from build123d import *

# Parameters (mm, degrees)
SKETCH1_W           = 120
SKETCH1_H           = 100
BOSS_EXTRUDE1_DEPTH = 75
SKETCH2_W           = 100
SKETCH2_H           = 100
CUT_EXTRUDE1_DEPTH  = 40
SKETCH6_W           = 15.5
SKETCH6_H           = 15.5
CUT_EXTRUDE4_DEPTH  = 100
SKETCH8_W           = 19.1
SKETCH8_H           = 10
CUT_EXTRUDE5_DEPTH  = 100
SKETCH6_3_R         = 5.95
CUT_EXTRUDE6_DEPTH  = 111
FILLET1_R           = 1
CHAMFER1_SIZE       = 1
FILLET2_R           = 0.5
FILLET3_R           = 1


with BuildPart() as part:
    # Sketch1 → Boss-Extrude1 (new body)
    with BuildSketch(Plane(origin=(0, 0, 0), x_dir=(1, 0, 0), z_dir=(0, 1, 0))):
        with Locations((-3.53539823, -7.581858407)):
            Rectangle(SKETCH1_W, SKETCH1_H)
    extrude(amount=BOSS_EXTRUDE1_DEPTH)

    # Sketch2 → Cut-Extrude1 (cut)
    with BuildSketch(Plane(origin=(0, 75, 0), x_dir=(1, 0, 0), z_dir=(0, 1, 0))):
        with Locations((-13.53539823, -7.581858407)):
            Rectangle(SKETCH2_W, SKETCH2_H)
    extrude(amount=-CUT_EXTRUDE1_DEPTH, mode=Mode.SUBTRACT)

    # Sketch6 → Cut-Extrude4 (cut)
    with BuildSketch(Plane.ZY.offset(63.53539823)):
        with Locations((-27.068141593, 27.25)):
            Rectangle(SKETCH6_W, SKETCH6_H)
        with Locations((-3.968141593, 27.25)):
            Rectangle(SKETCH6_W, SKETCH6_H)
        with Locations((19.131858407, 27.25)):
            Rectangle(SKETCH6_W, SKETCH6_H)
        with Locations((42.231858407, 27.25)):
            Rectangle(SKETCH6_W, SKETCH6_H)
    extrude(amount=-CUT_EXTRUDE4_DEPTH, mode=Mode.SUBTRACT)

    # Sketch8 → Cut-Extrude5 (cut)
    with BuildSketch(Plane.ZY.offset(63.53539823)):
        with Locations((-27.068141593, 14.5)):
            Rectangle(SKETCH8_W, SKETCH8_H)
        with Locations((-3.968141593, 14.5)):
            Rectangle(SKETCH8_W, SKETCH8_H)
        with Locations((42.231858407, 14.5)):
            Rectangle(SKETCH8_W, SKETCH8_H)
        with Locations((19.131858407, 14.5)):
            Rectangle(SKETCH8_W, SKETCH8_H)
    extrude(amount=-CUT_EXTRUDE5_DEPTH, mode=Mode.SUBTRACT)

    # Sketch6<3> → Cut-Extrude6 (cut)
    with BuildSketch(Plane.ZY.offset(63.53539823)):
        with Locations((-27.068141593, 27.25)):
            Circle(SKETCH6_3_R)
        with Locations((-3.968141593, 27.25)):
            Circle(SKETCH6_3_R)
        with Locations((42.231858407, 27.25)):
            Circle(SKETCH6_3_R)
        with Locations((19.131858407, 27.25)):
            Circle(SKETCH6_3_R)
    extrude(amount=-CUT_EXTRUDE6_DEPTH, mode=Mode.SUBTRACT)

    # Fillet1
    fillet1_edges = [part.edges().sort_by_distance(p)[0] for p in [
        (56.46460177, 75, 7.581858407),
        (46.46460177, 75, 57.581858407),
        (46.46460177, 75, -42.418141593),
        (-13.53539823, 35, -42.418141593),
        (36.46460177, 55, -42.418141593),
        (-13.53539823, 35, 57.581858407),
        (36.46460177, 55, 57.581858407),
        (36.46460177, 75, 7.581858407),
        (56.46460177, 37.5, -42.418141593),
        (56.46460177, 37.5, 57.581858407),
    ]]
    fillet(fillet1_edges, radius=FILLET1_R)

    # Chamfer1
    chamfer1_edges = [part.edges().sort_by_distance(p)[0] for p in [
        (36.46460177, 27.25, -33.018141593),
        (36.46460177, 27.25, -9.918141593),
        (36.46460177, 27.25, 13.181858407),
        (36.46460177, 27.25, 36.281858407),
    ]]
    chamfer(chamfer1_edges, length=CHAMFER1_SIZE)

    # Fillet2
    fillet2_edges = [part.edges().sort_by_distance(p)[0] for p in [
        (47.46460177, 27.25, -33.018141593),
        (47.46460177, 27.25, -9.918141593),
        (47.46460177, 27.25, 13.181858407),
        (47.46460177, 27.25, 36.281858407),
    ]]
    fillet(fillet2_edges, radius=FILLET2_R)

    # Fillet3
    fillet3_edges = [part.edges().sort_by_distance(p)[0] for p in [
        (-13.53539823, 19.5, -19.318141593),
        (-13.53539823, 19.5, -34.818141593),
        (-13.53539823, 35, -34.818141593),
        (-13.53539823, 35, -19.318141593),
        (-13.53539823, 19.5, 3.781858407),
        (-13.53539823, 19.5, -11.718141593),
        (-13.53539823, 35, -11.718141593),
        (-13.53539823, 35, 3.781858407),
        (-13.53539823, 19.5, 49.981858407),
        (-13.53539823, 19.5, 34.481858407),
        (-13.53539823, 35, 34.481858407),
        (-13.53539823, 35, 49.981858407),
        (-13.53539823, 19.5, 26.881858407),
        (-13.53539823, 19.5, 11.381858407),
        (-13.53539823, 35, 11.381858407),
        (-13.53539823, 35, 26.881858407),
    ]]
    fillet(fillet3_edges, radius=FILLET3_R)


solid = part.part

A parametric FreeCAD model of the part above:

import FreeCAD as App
import Part
import Sketcher
from FreeCAD import Vector


def edges_at(feature, points):
    """Names of the edges that pass closest to the given points."""
    edges = feature.Shape.Edges
    near = lambda p: min(range(len(edges)), key=lambda i: edges[i].distToShape(Part.Vertex(*p))[0])
    return sorted({f"Edge{near(p) + 1}" for p in points})

doc = App.newDocument("Part")
body = doc.addObject("PartDesign::Body", "Body")

sketch1 = body.newObject("Sketcher::SketchObject", "Sketch")
sketch1.AttachmentSupport = (doc.getObject("XZ_Plane"), [""])
sketch1.MapMode = "FlatFace"
sketch1.addGeometry(Part.LineSegment(Vector(-63.535398, -42.418142, 0), Vector(-63.535398, 57.581858, 0)), False)
sketch1.addGeometry(Part.LineSegment(Vector(-63.535398, 57.581858, 0), Vector(56.464602, 57.581858, 0)), False)
sketch1.addGeometry(Part.LineSegment(Vector(56.464602, 57.581858, 0), Vector(56.464602, -42.418142, 0)), False)
sketch1.addGeometry(Part.LineSegment(Vector(56.464602, -42.418142, 0), Vector(-63.535398, -42.418142, 0)), False)
sketch1.addConstraint(Sketcher.Constraint("Coincident", 0, 2, 1, 1))
sketch1.addConstraint(Sketcher.Constraint("Coincident", 1, 2, 2, 1))
sketch1.addConstraint(Sketcher.Constraint("Coincident", 2, 2, 3, 1))
sketch1.addConstraint(Sketcher.Constraint("Coincident", 3, 2, 0, 1))
sketch1.addConstraint(Sketcher.Constraint("Vertical", 0))
sketch1.addConstraint(Sketcher.Constraint("Horizontal", 1))
sketch1.addConstraint(Sketcher.Constraint("Vertical", 2))
sketch1.addConstraint(Sketcher.Constraint("Horizontal", 3))
sketch1.addConstraint(Sketcher.Constraint("DistanceX", 1, 1, 1, 2, 120.0))
sketch1.addConstraint(Sketcher.Constraint("DistanceY", 0, 1, 0, 2, 100.0))
sketch1.addConstraint(Sketcher.Constraint("DistanceX", 0, 2, -1, 1, 63.535398))
sketch1.addConstraint(Sketcher.Constraint("DistanceY", -1, 1, 0, 2, 57.581858))
pad1 = body.newObject("PartDesign::Pad", "Pad")
pad1.Profile = sketch1
pad1.Length = 75
pad1.Reversed = True

sketch2 = body.newObject("Sketcher::SketchObject", "Sketch001")
sketch2.AttachmentSupport = (doc.getObject("XZ_Plane"), [""])
sketch2.MapMode = "FlatFace"
sketch2.AttachmentOffset = App.Placement(Vector(0, 0, -75), App.Rotation())
sketch2.addGeometry(Part.LineSegment(Vector(-63.535398, -42.418142, 0), Vector(-63.535398, 57.581858, 0)), False)
sketch2.addGeometry(Part.LineSegment(Vector(-63.535398, 57.581858, 0), Vector(36.464602, 57.581858, 0)), False)
sketch2.addGeometry(Part.LineSegment(Vector(36.464602, 57.581858, 0), Vector(36.464602, -42.418142, 0)), False)
sketch2.addGeometry(Part.LineSegment(Vector(36.464602, -42.418142, 0), Vector(-63.535398, -42.418142, 0)), False)
sketch2.addConstraint(Sketcher.Constraint("Coincident", 0, 2, 1, 1))
sketch2.addConstraint(Sketcher.Constraint("Coincident", 1, 2, 2, 1))
sketch2.addConstraint(Sketcher.Constraint("Coincident", 2, 2, 3, 1))
sketch2.addConstraint(Sketcher.Constraint("Coincident", 3, 2, 0, 1))
sketch2.addConstraint(Sketcher.Constraint("Vertical", 0))
sketch2.addConstraint(Sketcher.Constraint("Horizontal", 1))
sketch2.addConstraint(Sketcher.Constraint("Vertical", 2))
sketch2.addConstraint(Sketcher.Constraint("Horizontal", 3))
sketch2.addConstraint(Sketcher.Constraint("Equal", 3, 0))
sketch2.addConstraint(Sketcher.Constraint("DistanceX", 1, 1, 1, 2, 100.0))
sketch2.addConstraint(Sketcher.Constraint("DistanceX", 0, 2, -1, 1, 63.535398))
sketch2.addConstraint(Sketcher.Constraint("DistanceY", -1, 1, 0, 2, 57.581858))
pocket1 = body.newObject("PartDesign::Pocket", "Pocket")
pocket1.Profile = sketch2
pocket1.Length = 40
pocket1.Reversed = True

sketch3 = body.newObject("Sketcher::SketchObject", "Sketch002")
sketch3.AttachmentSupport = (doc.getObject("YZ_Plane"), [""])
sketch3.MapMode = "FlatFace"
sketch3.AttachmentOffset = App.Placement(Vector(0, 0, -63.535398), App.Rotation())
sketch3.addGeometry(Part.LineSegment(Vector(35, -34.818142, 0), Vector(19.5, -34.818142, 0)), False)
sketch3.addGeometry(Part.LineSegment(Vector(19.5, -34.818142, 0), Vector(19.5, -19.318142, 0)), False)
sketch3.addGeometry(Part.LineSegment(Vector(19.5, -19.318142, 0), Vector(35, -19.318142, 0)), False)
sketch3.addGeometry(Part.LineSegment(Vector(35, -19.318142, 0), Vector(35, -34.818142, 0)), False)
sketch3.addGeometry(Part.LineSegment(Vector(35, -11.718142, 0), Vector(19.5, -11.718142, 0)), False)
sketch3.addGeometry(Part.LineSegment(Vector(19.5, -11.718142, 0), Vector(19.5, 3.781858, 0)), False)
sketch3.addGeometry(Part.LineSegment(Vector(19.5, 3.781858, 0), Vector(35, 3.781858, 0)), False)
sketch3.addGeometry(Part.LineSegment(Vector(35, 3.781858, 0), Vector(35, -11.718142, 0)), False)
sketch3.addGeometry(Part.LineSegment(Vector(35, 11.381858, 0), Vector(19.5, 11.381858, 0)), False)
sketch3.addGeometry(Part.LineSegment(Vector(19.5, 11.381858, 0), Vector(19.5, 26.881858, 0)), False)
sketch3.addGeometry(Part.LineSegment(Vector(19.5, 26.881858, 0), Vector(35, 26.881858, 0)), False)
sketch3.addGeometry(Part.LineSegment(Vector(35, 26.881858, 0), Vector(35, 11.381858, 0)), False)
sketch3.addGeometry(Part.LineSegment(Vector(35, 34.481858, 0), Vector(19.5, 34.481858, 0)), False)
sketch3.addGeometry(Part.LineSegment(Vector(19.5, 34.481858, 0), Vector(19.5, 49.981858, 0)), False)
sketch3.addGeometry(Part.LineSegment(Vector(19.5, 49.981858, 0), Vector(35, 49.981858, 0)), False)
sketch3.addGeometry(Part.LineSegment(Vector(35, 49.981858, 0), Vector(35, 34.481858, 0)), False)
sketch3.addConstraint(Sketcher.Constraint("Coincident", 0, 2, 1, 1))
sketch3.addConstraint(Sketcher.Constraint("Coincident", 1, 2, 2, 1))
sketch3.addConstraint(Sketcher.Constraint("Coincident", 2, 2, 3, 1))
sketch3.addConstraint(Sketcher.Constraint("Coincident", 3, 2, 0, 1))
sketch3.addConstraint(Sketcher.Constraint("Coincident", 4, 2, 5, 1))
sketch3.addConstraint(Sketcher.Constraint("Coincident", 5, 2, 6, 1))
sketch3.addConstraint(Sketcher.Constraint("Coincident", 6, 2, 7, 1))
sketch3.addConstraint(Sketcher.Constraint("Coincident", 7, 2, 4, 1))
sketch3.addConstraint(Sketcher.Constraint("Coincident", 8, 2, 9, 1))
sketch3.addConstraint(Sketcher.Constraint("Coincident", 9, 2, 10, 1))
sketch3.addConstraint(Sketcher.Constraint("Coincident", 10, 2, 11, 1))
sketch3.addConstraint(Sketcher.Constraint("Coincident", 11, 2, 8, 1))
sketch3.addConstraint(Sketcher.Constraint("Coincident", 12, 2, 13, 1))
sketch3.addConstraint(Sketcher.Constraint("Coincident", 13, 2, 14, 1))
sketch3.addConstraint(Sketcher.Constraint("Coincident", 14, 2, 15, 1))
sketch3.addConstraint(Sketcher.Constraint("Coincident", 15, 2, 12, 1))
sketch3.addConstraint(Sketcher.Constraint("Horizontal", 0))
sketch3.addConstraint(Sketcher.Constraint("Vertical", 1))
sketch3.addConstraint(Sketcher.Constraint("Horizontal", 2))
sketch3.addConstraint(Sketcher.Constraint("Vertical", 3))
sketch3.addConstraint(Sketcher.Constraint("Horizontal", 4))
sketch3.addConstraint(Sketcher.Constraint("Vertical", 5))
sketch3.addConstraint(Sketcher.Constraint("Horizontal", 6))
sketch3.addConstraint(Sketcher.Constraint("Vertical", 7))
sketch3.addConstraint(Sketcher.Constraint("Horizontal", 8))
sketch3.addConstraint(Sketcher.Constraint("Vertical", 9))
sketch3.addConstraint(Sketcher.Constraint("Horizontal", 10))
sketch3.addConstraint(Sketcher.Constraint("Vertical", 11))
sketch3.addConstraint(Sketcher.Constraint("Horizontal", 12))
sketch3.addConstraint(Sketcher.Constraint("Vertical", 13))
sketch3.addConstraint(Sketcher.Constraint("Horizontal", 14))
sketch3.addConstraint(Sketcher.Constraint("Vertical", 15))
sketch3.addConstraint(Sketcher.Constraint("Vertical", 1, 2, 4, 2))
sketch3.addConstraint(Sketcher.Constraint("Vertical", 3, 2, 6, 2))
sketch3.addConstraint(Sketcher.Constraint("Vertical", 5, 2, 8, 2))
sketch3.addConstraint(Sketcher.Constraint("Vertical", 7, 2, 10, 2))
sketch3.addConstraint(Sketcher.Constraint("Vertical", 9, 2, 12, 2))
sketch3.addConstraint(Sketcher.Constraint("Vertical", 11, 2, 14, 2))
sketch3.addConstraint(Sketcher.Constraint("Equal", 14, 1))
sketch3.addConstraint(Sketcher.Constraint("Equal", 3, 5))
sketch3.addConstraint(Sketcher.Constraint("Equal", 7, 9))
sketch3.addConstraint(Sketcher.Constraint("Equal", 11, 13))
sketch3.addConstraint(Sketcher.Constraint("DistanceX", 0, 2, 0, 1, 15.5))
sketch3.addConstraint(Sketcher.Constraint("DistanceX", -1, 1, 2, 2, 35.0))
sketch3.addConstraint(Sketcher.Constraint("DistanceY", 1, 2, 4, 2, 7.6))
sketch3.addConstraint(Sketcher.Constraint("DistanceY", 5, 2, 8, 2, 7.6))
sketch3.addConstraint(Sketcher.Constraint("DistanceY", 9, 2, 12, 2, 7.6))
sketch3.addConstraint(Sketcher.Constraint("DistanceY", 0, 2, -1, 1, 34.818142))
pocket2 = body.newObject("PartDesign::Pocket", "Pocket001")
pocket2.Profile = sketch3
pocket2.Length = 100
pocket2.Reversed = True

sketch4 = body.newObject("Sketcher::SketchObject", "Sketch003")
sketch4.AttachmentSupport = (doc.getObject("YZ_Plane"), [""])
sketch4.MapMode = "FlatFace"
sketch4.AttachmentOffset = App.Placement(Vector(0, 0, -63.535398), App.Rotation())
sketch4.addGeometry(Part.LineSegment(Vector(19.5, -36.618142, 0), Vector(9.5, -36.618142, 0)), False)
sketch4.addGeometry(Part.LineSegment(Vector(9.5, -36.618142, 0), Vector(9.5, -17.518142, 0)), False)
sketch4.addGeometry(Part.LineSegment(Vector(9.5, -17.518142, 0), Vector(19.5, -17.518142, 0)), False)
sketch4.addGeometry(Part.LineSegment(Vector(19.5, -17.518142, 0), Vector(19.5, -36.618142, 0)), False)
sketch4.addGeometry(Part.LineSegment(Vector(19.5, -13.518142, 0), Vector(9.5, -13.518142, 0)), False)
sketch4.addGeometry(Part.LineSegment(Vector(9.5, -13.518142, 0), Vector(9.5, 5.581858, 0)), False)
sketch4.addGeometry(Part.LineSegment(Vector(9.5, 5.581858, 0), Vector(19.5, 5.581858, 0)), False)
sketch4.addGeometry(Part.LineSegment(Vector(19.5, 5.581858, 0), Vector(19.5, -13.518142, 0)), False)
sketch4.addGeometry(Part.LineSegment(Vector(19.5, 32.681858, 0), Vector(9.5, 32.681858, 0)), False)
sketch4.addGeometry(Part.LineSegment(Vector(9.5, 32.681858, 0), Vector(9.5, 51.781858, 0)), False)
sketch4.addGeometry(Part.LineSegment(Vector(9.5, 51.781858, 0), Vector(19.5, 51.781858, 0)), False)
sketch4.addGeometry(Part.LineSegment(Vector(19.5, 51.781858, 0), Vector(19.5, 32.681858, 0)), False)
sketch4.addGeometry(Part.LineSegment(Vector(19.5, 9.581858, 0), Vector(9.5, 9.581858, 0)), False)
sketch4.addGeometry(Part.LineSegment(Vector(9.5, 9.581858, 0), Vector(9.5, 28.681858, 0)), False)
sketch4.addGeometry(Part.LineSegment(Vector(9.5, 28.681858, 0), Vector(19.5, 28.681858, 0)), False)
sketch4.addGeometry(Part.LineSegment(Vector(19.5, 28.681858, 0), Vector(19.5, 9.581858, 0)), False)
sketch4.addConstraint(Sketcher.Constraint("Coincident", 0, 2, 1, 1))
sketch4.addConstraint(Sketcher.Constraint("Coincident", 1, 2, 2, 1))
sketch4.addConstraint(Sketcher.Constraint("Coincident", 2, 2, 3, 1))
sketch4.addConstraint(Sketcher.Constraint("Coincident", 3, 2, 0, 1))
sketch4.addConstraint(Sketcher.Constraint("Coincident", 4, 2, 5, 1))
sketch4.addConstraint(Sketcher.Constraint("Coincident", 5, 2, 6, 1))
sketch4.addConstraint(Sketcher.Constraint("Coincident", 6, 2, 7, 1))
sketch4.addConstraint(Sketcher.Constraint("Coincident", 7, 2, 4, 1))
sketch4.addConstraint(Sketcher.Constraint("Coincident", 8, 2, 9, 1))
sketch4.addConstraint(Sketcher.Constraint("Coincident", 9, 2, 10, 1))
sketch4.addConstraint(Sketcher.Constraint("Coincident", 10, 2, 11, 1))
sketch4.addConstraint(Sketcher.Constraint("Coincident", 11, 2, 8, 1))
sketch4.addConstraint(Sketcher.Constraint("Coincident", 12, 2, 13, 1))
sketch4.addConstraint(Sketcher.Constraint("Coincident", 13, 2, 14, 1))
sketch4.addConstraint(Sketcher.Constraint("Coincident", 14, 2, 15, 1))
sketch4.addConstraint(Sketcher.Constraint("Coincident", 15, 2, 12, 1))
sketch4.addConstraint(Sketcher.Constraint("Horizontal", 0))
sketch4.addConstraint(Sketcher.Constraint("Vertical", 1))
sketch4.addConstraint(Sketcher.Constraint("Horizontal", 2))
sketch4.addConstraint(Sketcher.Constraint("Vertical", 3))
sketch4.addConstraint(Sketcher.Constraint("Horizontal", 4))
sketch4.addConstraint(Sketcher.Constraint("Vertical", 5))
sketch4.addConstraint(Sketcher.Constraint("Horizontal", 6))
sketch4.addConstraint(Sketcher.Constraint("Vertical", 7))
sketch4.addConstraint(Sketcher.Constraint("Horizontal", 8))
sketch4.addConstraint(Sketcher.Constraint("Vertical", 9))
sketch4.addConstraint(Sketcher.Constraint("Horizontal", 10))
sketch4.addConstraint(Sketcher.Constraint("Vertical", 11))
sketch4.addConstraint(Sketcher.Constraint("Horizontal", 12))
sketch4.addConstraint(Sketcher.Constraint("Vertical", 13))
sketch4.addConstraint(Sketcher.Constraint("Horizontal", 14))
sketch4.addConstraint(Sketcher.Constraint("Vertical", 15))
sketch4.addConstraint(Sketcher.Constraint("Vertical", 1, 2, 4, 2))
sketch4.addConstraint(Sketcher.Constraint("Vertical", 3, 2, 6, 2))
sketch4.addConstraint(Sketcher.Constraint("Vertical", 5, 2, 8, 2))
sketch4.addConstraint(Sketcher.Constraint("Vertical", 7, 2, 10, 2))
sketch4.addConstraint(Sketcher.Constraint("Vertical", 9, 2, 12, 2))
sketch4.addConstraint(Sketcher.Constraint("Vertical", 11, 2, 14, 2))
sketch4.addConstraint(Sketcher.Constraint("Equal", 3, 5))
sketch4.addConstraint(Sketcher.Constraint("Equal", 7, 9))
sketch4.addConstraint(Sketcher.Constraint("Equal", 11, 13))
sketch4.addConstraint(Sketcher.Constraint("DistanceX", 0, 2, 0, 1, 10.0))
sketch4.addConstraint(Sketcher.Constraint("DistanceY", 1, 1, 1, 2, 19.1))
sketch4.addConstraint(Sketcher.Constraint("DistanceY", 1, 2, 4, 2, 4.0))
sketch4.addConstraint(Sketcher.Constraint("DistanceY", 5, 2, 12, 2, 4.0))
sketch4.addConstraint(Sketcher.Constraint("DistanceY", 13, 2, 8, 2, 4.0))
sketch4.addConstraint(Sketcher.Constraint("DistanceX", -1, 1, 0, 2, 9.5))
sketch4.addConstraint(Sketcher.Constraint("DistanceY", 0, 2, -1, 1, 36.618142))
pocket3 = body.newObject("PartDesign::Pocket", "Pocket002")
pocket3.Profile = sketch4
pocket3.Length = 100
pocket3.Reversed = True

sketch5 = body.newObject("Sketcher::SketchObject", "Sketch004")
sketch5.AttachmentSupport = (doc.getObject("YZ_Plane"), [""])
sketch5.MapMode = "FlatFace"
sketch5.AttachmentOffset = App.Placement(Vector(0, 0, -63.535398), App.Rotation())
sketch5.addGeometry(Part.Circle(Vector(27.25, -27.068142, 0), Vector(0, 0, 1), 5.95), False)
sketch5.addGeometry(Part.Circle(Vector(27.25, -3.968142, 0), Vector(0, 0, 1), 5.95), False)
sketch5.addGeometry(Part.Circle(Vector(27.25, 42.231858, 0), Vector(0, 0, 1), 5.95), False)
sketch5.addGeometry(Part.Circle(Vector(27.25, 19.131858, 0), Vector(0, 0, 1), 5.95), False)
sketch5.addConstraint(Sketcher.Constraint("Equal", 0, 1))
sketch5.addConstraint(Sketcher.Constraint("Equal", 1, 2))
sketch5.addConstraint(Sketcher.Constraint("Equal", 2, 3))
sketch5.addConstraint(Sketcher.Constraint("Vertical", 0, 3, 1, 3))
sketch5.addConstraint(Sketcher.Constraint("Vertical", 1, 3, 2, 3))
sketch5.addConstraint(Sketcher.Constraint("Vertical", 2, 3, 3, 3))
sketch5.addConstraint(Sketcher.Constraint("Diameter", 0, 11.9))
sketch5.addConstraint(Sketcher.Constraint("DistanceY", 0, 3, 1, 3, 23.1))
sketch5.addConstraint(Sketcher.Constraint("DistanceY", 1, 3, 2, 3, 46.2))
sketch5.addConstraint(Sketcher.Constraint("DistanceY", 1, 3, 3, 3, 23.1))
sketch5.addConstraint(Sketcher.Constraint("DistanceX", -1, 1, 0, 3, 27.25))
sketch5.addConstraint(Sketcher.Constraint("DistanceY", 0, 3, -1, 1, 27.068142))
pocket4 = body.newObject("PartDesign::Pocket", "Pocket003")
pocket4.Profile = sketch5
pocket4.Length = 111
pocket4.Reversed = True
doc.recompute()

fillet = body.newObject("PartDesign::Fillet", "Fillet")
fillet.Base = (pocket4, edges_at(pocket4, [
    (56.465, 75, 7.582),
    (46.465, 75, 57.582),
    (46.465, 75, -42.418),
    (-13.535, 35, -42.418),
    (36.465, 55, -42.418),
    (-13.535, 35, 57.582),
    (36.465, 55, 57.582),
    (36.465, 75, 7.582),
    (56.465, 37.5, -42.418),
    (56.465, 37.5, 57.582),
]))
fillet.Radius = 1
doc.recompute()

chamfer = body.newObject("PartDesign::Chamfer", "Chamfer")
chamfer.Base = (fillet, edges_at(fillet, [
    (36.465, 27.25, -33.018),
    (36.465, 27.25, -9.918),
    (36.465, 27.25, 13.182),
    (36.465, 27.25, 36.282),
]))
chamfer.Size = 1
doc.recompute()

fillet2 = body.newObject("PartDesign::Fillet", "Fillet001")
fillet2.Base = (chamfer, edges_at(chamfer, [
    (47.465, 27.25, -33.018),
    (47.465, 27.25, -9.918),
    (47.465, 27.25, 13.182),
    (47.465, 27.25, 36.282),
]))
fillet2.Radius = 0.5
doc.recompute()

fillet3 = body.newObject("PartDesign::Fillet", "Fillet002")
fillet3.Base = (fillet2, edges_at(fillet2, [
    (-13.535, 19.5, -19.318),
    (-13.535, 19.5, -34.818),
    (-13.535, 35, -34.818),
    (-13.535, 35, -19.318),
    (-13.535, 19.5, 3.782),
    (-13.535, 19.5, -11.718),
    (-13.535, 35, -11.718),
    (-13.535, 35, 3.782),
    (-13.535, 19.5, 49.982),
    (-13.535, 19.5, 34.482),
    (-13.535, 35, 34.482),
    (-13.535, 35, 49.982),
    (-13.535, 19.5, 26.882),
    (-13.535, 19.5, 11.382),
    (-13.535, 35, 11.382),
    (-13.535, 35, 26.882),
]))
fillet3.Radius = 1

doc.recompute()
